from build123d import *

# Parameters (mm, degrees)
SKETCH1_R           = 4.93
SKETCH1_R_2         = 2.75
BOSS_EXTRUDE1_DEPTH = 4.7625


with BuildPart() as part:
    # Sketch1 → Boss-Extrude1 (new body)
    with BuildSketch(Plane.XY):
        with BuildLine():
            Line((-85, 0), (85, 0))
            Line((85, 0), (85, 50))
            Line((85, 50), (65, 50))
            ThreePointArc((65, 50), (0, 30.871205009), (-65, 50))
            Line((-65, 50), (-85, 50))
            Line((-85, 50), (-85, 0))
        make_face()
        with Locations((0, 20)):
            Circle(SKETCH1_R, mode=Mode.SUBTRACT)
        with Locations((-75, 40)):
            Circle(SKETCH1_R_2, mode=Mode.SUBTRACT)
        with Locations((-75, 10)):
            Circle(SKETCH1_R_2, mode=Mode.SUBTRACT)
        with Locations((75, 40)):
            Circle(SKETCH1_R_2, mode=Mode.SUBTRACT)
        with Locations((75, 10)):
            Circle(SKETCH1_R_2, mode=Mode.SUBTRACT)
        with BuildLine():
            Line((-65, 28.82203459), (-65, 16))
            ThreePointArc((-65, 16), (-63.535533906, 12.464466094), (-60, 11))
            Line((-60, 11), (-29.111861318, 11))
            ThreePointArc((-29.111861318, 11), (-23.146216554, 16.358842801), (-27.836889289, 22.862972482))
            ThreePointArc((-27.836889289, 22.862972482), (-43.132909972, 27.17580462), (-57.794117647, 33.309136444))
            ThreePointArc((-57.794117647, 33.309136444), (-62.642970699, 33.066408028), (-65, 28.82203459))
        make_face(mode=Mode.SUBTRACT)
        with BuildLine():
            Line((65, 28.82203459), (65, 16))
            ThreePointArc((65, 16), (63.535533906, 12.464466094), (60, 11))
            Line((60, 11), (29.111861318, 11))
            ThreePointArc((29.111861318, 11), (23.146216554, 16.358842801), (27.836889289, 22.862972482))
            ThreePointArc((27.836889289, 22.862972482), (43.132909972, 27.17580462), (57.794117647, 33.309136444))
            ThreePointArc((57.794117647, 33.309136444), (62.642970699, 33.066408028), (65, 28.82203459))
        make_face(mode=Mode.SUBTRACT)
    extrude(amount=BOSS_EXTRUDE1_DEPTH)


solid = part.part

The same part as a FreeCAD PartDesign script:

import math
import FreeCAD as App
import Part
import Sketcher

V = App.Vector
Q = App.Units.Quantity

doc = App.newDocument("Part")
body = doc.addObject("PartDesign::Body", "Body")

# Sketch on XY plane
sketch1 = doc.addObject("Sketcher::SketchObject", "Sketch")
body.addObject(sketch1)
sketch1.AttachmentSupport = (doc.XY_Plane, [""])
sketch1.MapMode = "FlatFace"
sketch1.addGeometry(Part.LineSegment(V(-85, 0, 0), V(85, 0, 0)), False)
sketch1.addGeometry(Part.LineSegment(V(85, 0, 0), V(85, 50, 0)), False)
sketch1.addGeometry(Part.LineSegment(V(85, 50, 0), V(65, 50, 0)), False)
sketch1.addGeometry(Part.ArcOfCircle(Part.Circle(V(0, 150.9, 0), V(0, 0, 1), 120), math.radians(-123), math.radians(-57)), False)
sketch1.addGeometry(Part.LineSegment(V(-65, 50, 0), V(-85, 50, 0)), False)
sketch1.addGeometry(Part.LineSegment(V(-85, 50, 0), V(-85, 0, 0)), False)
sketch1.addGeometry(Part.Circle(V(-75, 10, 0), V(0, 0, 1), 2.8), False)
sketch1.addGeometry(Part.LineSegment(V(-65, 16, 0), V(-65, 28.8, 0)), False)
sketch1.addGeometry(Part.ArcOfCircle(Part.Circle(V(-60, 28.8, 0), V(0, 0, 1), 5), math.radians(64), math.radians(180)), False)
sketch1.addGeometry(Part.ArcOfCircle(Part.Circle(V(0, 150.9, 0), V(0, 0, 1), 131), math.radians(-116.18), math.radians(-102.27)), False)
sketch1.addGeometry(Part.ArcOfCircle(Part.Circle(V(-29.1, 17, 0), V(0, 0, 1), 6), math.radians(-90), math.radians(78)), False)
sketch1.addGeometry(Part.LineSegment(V(-29.1, 11, 0), V(-60, 11, 0)), False)
sketch1.addGeometry(Part.ArcOfCircle(Part.Circle(V(-60, 16, 0), V(0, 0, 1), 5), math.radians(180), math.radians(270)), False)
sketch1.addGeometry(Part.Circle(V(75, 10, 0), V(0, 0, 1), 2.8), False)
sketch1.addGeometry(Part.Circle(V(0, 20, 0), V(0, 0, 1), 4.9), False)
sketch1.addGeometry(Part.ArcOfCircle(Part.Circle(V(60, 28.8, 0), V(0, 0, 1), 5), math.radians(0), math.radians(116)), False)
sketch1.addGeometry(Part.LineSegment(V(65, 28.8, 0), V(65, 16, 0)), False)
sketch1.addGeometry(Part.ArcOfCircle(Part.Circle(V(60, 16, 0), V(0, 0, 1), 5), math.radians(-90), math.radians(0)), False)
sketch1.addGeometry(Part.LineSegment(V(60, 11, 0), V(29.1, 11, 0)), False)
sketch1.addGeometry(Part.ArcOfCircle(Part.Circle(V(29.1, 17, 0), V(0, 0, 1), 6), math.radians(102), math.radians(270)), False)
sketch1.addGeometry(Part.ArcOfCircle(Part.Circle(V(0, 150.9, 0), V(0, 0, 1), 131), math.radians(-77.73), math.radians(-63.82)), False)
sketch1.addGeometry(Part.Circle(V(-75, 40, 0), V(0, 0, 1), 2.8), False)
sketch1.addGeometry(Part.Circle(V(75, 40, 0), V(0, 0, 1), 2.8), False)
sketch1.addConstraint(Sketcher.Constraint("Coincident", 0, 2, 1, 1))
sketch1.addConstraint(Sketcher.Constraint("Coincident", 1, 2, 2, 1))
sketch1.addConstraint(Sketcher.Constraint("Coincident", 2, 2, 3, 2))
sketch1.addConstraint(Sketcher.Constraint("Coincident", 3, 1, 4, 1))
sketch1.addConstraint(Sketcher.Constraint("Coincident", 4, 2, 5, 1))
sketch1.addConstraint(Sketcher.Constraint("Coincident", 5, 2, 0, 1))
sketch1.addConstraint(Sketcher.Constraint("Tangent", 7, 2, 8, 2))
sketch1.addConstraint(Sketcher.Constraint("Tangent", 8, 1, 9, 1))
sketch1.addConstraint(Sketcher.Constraint("Tangent", 9, 2, 10, 2))
sketch1.addConstraint(Sketcher.Constraint("Tangent", 10, 1, 11, 1))
sketch1.addConstraint(Sketcher.Constraint("Tangent", 11, 2, 12, 2))
sketch1.addConstraint(Sketcher.Constraint("Tangent", 12, 1, 7, 1))
sketch1.addConstraint(Sketcher.Constraint("Tangent", 15, 1, 16, 1))
sketch1.addConstraint(Sketcher.Constraint("Tangent", 16, 2, 17, 2))
sketch1.addConstraint(Sketcher.Constraint("Tangent", 17, 1, 18, 1))
sketch1.addConstraint(Sketcher.Constraint("Tangent", 18, 2, 19, 2))
sketch1.addConstraint(Sketcher.Constraint("Tangent", 19, 1, 20, 1))
sketch1.addConstraint(Sketcher.Constraint("Tangent", 20, 2, 15, 2))
sketch1.addConstraint(Sketcher.Constraint("Horizontal", 0))
sketch1.addConstraint(Sketcher.Constraint("Vertical", 1))
sketch1.addConstraint(Sketcher.Constraint("Horizontal", 2))
sketch1.addConstraint(Sketcher.Constraint("Horizontal", 4))
sketch1.addConstraint(Sketcher.Constraint("Vertical", 5))
sketch1.addConstraint(Sketcher.Constraint("Vertical", 7))
sketch1.addConstraint(Sketcher.Constraint("Horizontal", 11))
sketch1.addConstraint(Sketcher.Constraint("Vertical", 16))
sketch1.addConstraint(Sketcher.Constraint("Horizontal", 18))
sketch1.addConstraint(Sketcher.Constraint("Coincident", 9, 3, 3, 3))
sketch1.addConstraint(Sketcher.Constraint("Coincident", 20, 3, 3, 3))
sketch1.addConstraint(Sketcher.Constraint("Equal", 8, 12))
sketch1.addConstraint(Sketcher.Constraint("Equal", 6, 13))
sketch1.addConstraint(Sketcher.Constraint("Equal", 12, 15))
sketch1.addConstraint(Sketcher.Constraint("Equal", 15, 17))
sketch1.addConstraint(Sketcher.Constraint("Equal", 10, 19))
sketch1.addConstraint(Sketcher.Constraint("Equal", 9, 20))
sketch1.addConstraint(Sketcher.Constraint("Equal", 13, 21))
sketch1.addConstraint(Sketcher.Constraint("Equal", 21, 22))
sketch1.addConstraint(Sketcher.Constraint("Symmetric", 0, 2, 5, 2, -1, 1))
sketch1.addConstraint(Sketcher.Constraint("Symmetric", 6, 3, 13, 3, -2))
sketch1.addConstraint(Sketcher.Constraint("Symmetric", 8, 3, 15, 3, -2))
sketch1.addConstraint(Sketcher.Constraint("Symmetric", 21, 3, 22, 3, -2))
sketch1.addConstraint(Sketcher.Constraint("PointOnObject", 14, 3, -2))
sketch1.addConstraint(Sketcher.Constraint("Horizontal", 12, 3, 17, 3))
sketch1.addConstraint(Sketcher.Constraint("Horizontal", 2, 2, 3, 1))
sketch1.addConstraint(Sketcher.Constraint("Vertical", 6, 3, 21, 3))
sketch1.addConstraint(Sketcher.Constraint("Vertical", 3, 1, 7, 2))
sketch1.addConstraint(Sketcher.Constraint("Radius", 3, Q("120 mm")))
sketch1.addConstraint(Sketcher.Constraint("Radius", 8, Q("5 mm")))
sketch1.addConstraint(Sketcher.Constraint("Radius", 9, Q("131 mm")))
sketch1.addConstraint(Sketcher.Constraint("Radius", 10, Q("6 mm")))
sketch1.addConstraint(Sketcher.Constraint("Diameter", 6, Q("5.5 mm")))
sketch1.addConstraint(Sketcher.Constraint("Diameter", 14, Q("9.86 mm")))
sketch1.addConstraint(Sketcher.Constraint("DistanceX", 0, 1, 0, 2, Q("170 mm")))
sketch1.addConstraint(Sketcher.Constraint("DistanceX", 2, 2, 2, 1, Q("20 mm")))
sketch1.addConstraint(Sketcher.Constraint("DistanceY", 1, 1, 1, 2, Q("50 mm")))
sketch1.addConstraint(Sketcher.Constraint("DistanceX", 6, 3, -1, 1, Q("75 mm")))
sketch1.addConstraint(Sketcher.Constraint("DistanceY", -1, 1, 6, 3, Q("10 mm")))
sketch1.addConstraint(Sketcher.Constraint("DistanceY", -1, 1, 10, 3, Q("17 mm")))
sketch1.addConstraint(Sketcher.Constraint("DistanceY", -1, 1, 14, 3, Q("20 mm")))
sketch1.addConstraint(Sketcher.Constraint("DistanceY", -1, 1, 21, 3, Q("40 mm")))
pad1 = doc.addObject("PartDesign::Pad", "Pad")
body.addObject(pad1)
pad1.Profile = sketch1
pad1.Length = 4.7625

doc.recompute()
